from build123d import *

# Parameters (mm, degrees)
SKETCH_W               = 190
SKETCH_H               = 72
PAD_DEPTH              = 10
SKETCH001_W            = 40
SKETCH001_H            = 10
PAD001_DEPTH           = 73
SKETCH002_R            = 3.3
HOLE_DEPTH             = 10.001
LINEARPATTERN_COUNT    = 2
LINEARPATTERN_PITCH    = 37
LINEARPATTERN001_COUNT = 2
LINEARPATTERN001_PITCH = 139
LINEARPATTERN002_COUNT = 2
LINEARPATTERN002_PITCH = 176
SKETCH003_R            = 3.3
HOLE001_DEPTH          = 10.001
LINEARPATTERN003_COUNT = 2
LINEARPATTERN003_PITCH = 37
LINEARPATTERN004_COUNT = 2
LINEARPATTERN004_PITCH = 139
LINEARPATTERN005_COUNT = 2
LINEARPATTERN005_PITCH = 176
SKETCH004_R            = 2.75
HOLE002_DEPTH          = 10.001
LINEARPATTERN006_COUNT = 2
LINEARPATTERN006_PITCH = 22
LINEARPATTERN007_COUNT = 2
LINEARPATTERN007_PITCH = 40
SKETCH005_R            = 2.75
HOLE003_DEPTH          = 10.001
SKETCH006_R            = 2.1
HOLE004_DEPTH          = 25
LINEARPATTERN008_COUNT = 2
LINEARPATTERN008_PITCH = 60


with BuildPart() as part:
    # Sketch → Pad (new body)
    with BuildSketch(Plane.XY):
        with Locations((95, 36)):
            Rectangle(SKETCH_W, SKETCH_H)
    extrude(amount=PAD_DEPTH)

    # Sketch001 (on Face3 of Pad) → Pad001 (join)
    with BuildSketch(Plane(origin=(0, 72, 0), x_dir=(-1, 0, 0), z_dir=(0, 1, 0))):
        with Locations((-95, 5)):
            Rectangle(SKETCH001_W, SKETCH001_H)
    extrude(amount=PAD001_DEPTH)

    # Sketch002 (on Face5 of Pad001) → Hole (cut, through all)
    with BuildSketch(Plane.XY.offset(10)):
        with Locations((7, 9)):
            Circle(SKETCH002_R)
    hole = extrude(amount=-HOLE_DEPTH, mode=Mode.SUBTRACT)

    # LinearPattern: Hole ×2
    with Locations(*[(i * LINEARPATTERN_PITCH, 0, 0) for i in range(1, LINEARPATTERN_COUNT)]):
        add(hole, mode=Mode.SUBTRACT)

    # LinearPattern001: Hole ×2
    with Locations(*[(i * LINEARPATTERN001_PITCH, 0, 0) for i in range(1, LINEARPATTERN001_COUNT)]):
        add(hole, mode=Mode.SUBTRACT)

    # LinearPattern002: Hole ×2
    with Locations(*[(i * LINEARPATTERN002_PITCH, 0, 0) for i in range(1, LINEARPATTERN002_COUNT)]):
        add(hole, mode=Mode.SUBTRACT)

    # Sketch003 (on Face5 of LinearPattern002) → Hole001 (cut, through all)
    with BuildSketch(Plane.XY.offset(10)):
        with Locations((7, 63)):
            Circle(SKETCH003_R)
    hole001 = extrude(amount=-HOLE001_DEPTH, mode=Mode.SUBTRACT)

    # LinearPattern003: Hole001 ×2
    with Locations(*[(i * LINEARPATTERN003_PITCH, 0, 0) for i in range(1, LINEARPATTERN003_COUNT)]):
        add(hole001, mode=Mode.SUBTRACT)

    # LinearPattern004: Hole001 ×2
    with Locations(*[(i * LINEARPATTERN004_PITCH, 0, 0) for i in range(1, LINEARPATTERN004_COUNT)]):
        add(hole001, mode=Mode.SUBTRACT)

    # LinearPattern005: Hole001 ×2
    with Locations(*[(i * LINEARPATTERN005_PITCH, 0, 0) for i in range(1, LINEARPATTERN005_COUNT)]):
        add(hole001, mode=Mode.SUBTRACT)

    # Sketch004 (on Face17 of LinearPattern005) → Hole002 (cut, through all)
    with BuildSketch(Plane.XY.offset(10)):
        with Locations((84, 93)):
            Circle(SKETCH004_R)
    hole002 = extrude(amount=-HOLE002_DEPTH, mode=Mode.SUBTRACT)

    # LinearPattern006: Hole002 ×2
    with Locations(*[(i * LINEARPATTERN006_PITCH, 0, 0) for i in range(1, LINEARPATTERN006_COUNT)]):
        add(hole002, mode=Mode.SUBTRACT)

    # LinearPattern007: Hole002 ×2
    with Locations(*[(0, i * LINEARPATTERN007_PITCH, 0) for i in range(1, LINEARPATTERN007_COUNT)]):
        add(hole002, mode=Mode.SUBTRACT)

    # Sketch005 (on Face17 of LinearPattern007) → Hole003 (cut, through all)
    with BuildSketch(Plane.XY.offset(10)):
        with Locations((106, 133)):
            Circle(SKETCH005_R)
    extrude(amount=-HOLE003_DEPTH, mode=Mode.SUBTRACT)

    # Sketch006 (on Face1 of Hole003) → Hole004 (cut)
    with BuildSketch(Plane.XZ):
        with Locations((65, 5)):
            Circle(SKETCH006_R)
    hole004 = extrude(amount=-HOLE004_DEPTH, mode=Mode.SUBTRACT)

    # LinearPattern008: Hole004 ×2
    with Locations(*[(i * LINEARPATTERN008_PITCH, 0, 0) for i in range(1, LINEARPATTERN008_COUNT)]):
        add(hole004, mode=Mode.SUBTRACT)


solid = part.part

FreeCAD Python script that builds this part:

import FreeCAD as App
import Part
import Sketcher
from FreeCAD import Vector

doc = App.newDocument("Part")
body = doc.addObject("PartDesign::Body", "Body")

sketch1 = doc.addObject("Sketcher::SketchObject", "Sketch")
body.addObject(sketch1)
sketch1.AttachmentSupport = (doc.XY_Plane, [""])
sketch1.MapMode = "FlatFace"
sketch1.addGeometry(Part.LineSegment(Vector(0, 72, 0), Vector(0, 0, 0)), False)
sketch1.addGeometry(Part.LineSegment(Vector(0, 0, 0), Vector(190, 0, 0)), False)
sketch1.addGeometry(Part.LineSegment(Vector(190, 0, 0), Vector(190, 72, 0)), False)
sketch1.addGeometry(Part.LineSegment(Vector(190, 72, 0), Vector(0, 72, 0)), False)
sketch1.addConstraint(Sketcher.Constraint("Coincident", 0, 2, 1, 1))
sketch1.addConstraint(Sketcher.Constraint("Coincident", 1, 2, 2, 1))
sketch1.addConstraint(Sketcher.Constraint("Coincident", 2, 2, 3, 1))
sketch1.addConstraint(Sketcher.Constraint("Coincident", 3, 2, 0, 1))
sketch1.addConstraint(Sketcher.Constraint("Vertical", 0))
sketch1.addConstraint(Sketcher.Constraint("Horizontal", 1))
sketch1.addConstraint(Sketcher.Constraint("Vertical", 2))
sketch1.addConstraint(Sketcher.Constraint("Horizontal", 3))
sketch1.addConstraint(Sketcher.Constraint("Coincident", 0, 2, -1, 1))
sketch1.addConstraint(Sketcher.Constraint("DistanceX", 1, 1, 1, 2, 190.0))
sketch1.addConstraint(Sketcher.Constraint("DistanceY", 0, 2, 0, 1, 72.0))
pad1 = doc.addObject("PartDesign::Pad", "Pad")
body.addObject(pad1)
pad1.Profile = sketch1
pad1.Length = 10

sketch2 = doc.addObject("Sketcher::SketchObject", "Sketch001")
body.addObject(sketch2)
sketch2.AttachmentSupport = (doc.XZ_Plane, [""])
sketch2.MapMode = "FlatFace"
sketch2.AttachmentOffset = App.Placement(Vector(0, 0, -72), App.Rotation())
sketch2.addGeometry(Part.LineSegment(Vector(115, 10, 0), Vector(115, 0, 0)), False)
sketch2.addGeometry(Part.LineSegment(Vector(115, 0, 0), Vector(75, 0, 0)), False)
sketch2.addGeometry(Part.LineSegment(Vector(75, 0, 0), Vector(75, 10, 0)), False)
sketch2.addGeometry(Part.LineSegment(Vector(75, 10, 0), Vector(115, 10, 0)), False)
sketch2.addConstraint(Sketcher.Constraint("Coincident", 0, 2, 1, 1))
sketch2.addConstraint(Sketcher.Constraint("Coincident", 1, 2, 2, 1))
sketch2.addConstraint(Sketcher.Constraint("Coincident", 2, 2, 3, 1))
sketch2.addConstraint(Sketcher.Constraint("Coincident", 3, 2, 0, 1))
sketch2.addConstraint(Sketcher.Constraint("Vertical", 0))
sketch2.addConstraint(Sketcher.Constraint("Horizontal", 1))
sketch2.addConstraint(Sketcher.Constraint("Vertical", 2))
sketch2.addConstraint(Sketcher.Constraint("Horizontal", 3))
sketch2.addConstraint(Sketcher.Constraint("PointOnObject", 0, 2, -1))
sketch2.addConstraint(Sketcher.Constraint("DistanceX", 1, 2, 1, 1, 40.0))
sketch2.addConstraint(Sketcher.Constraint("DistanceY", 0, 2, 0, 1, 10.0))
sketch2.addConstraint(Sketcher.Constraint("DistanceX", -1, 1, 0, 2, 115.0))
pad2 = doc.addObject("PartDesign::Pad", "Pad001")
body.addObject(pad2)
pad2.Profile = sketch2
pad2.Length = 73
pad2.Reversed = True

sketch3 = doc.addObject("Sketcher::SketchObject", "Sketch002")
body.addObject(sketch3)
sketch3.AttachmentSupport = (doc.XY_Plane, [""])
sketch3.MapMode = "FlatFace"
sketch3.AttachmentOffset = App.Placement(Vector(0, 0, 10), App.Rotation())
sketch3.addGeometry(Part.Circle(Vector(7, 9, 0), Vector(0, 0, 1), 3.3), False)
sketch3.addConstraint(Sketcher.Constraint("Diameter", 0, 6.6))
sketch3.addConstraint(Sketcher.Constraint("DistanceX", -1, 1, 0, 3, 7.0))
sketch3.addConstraint(Sketcher.Constraint("DistanceY", -1, 1, 0, 3, 9.0))
pocket1 = doc.addObject("PartDesign::Pocket", "Pocket")
body.addObject(pocket1)
pocket1.Profile = sketch3
pocket1.Type = "ThroughAll"
doc.recompute()

linearpattern = doc.addObject("PartDesign::LinearPattern", "LinearPattern")
body.addObject(linearpattern)
linearpattern.Originals = [pocket1]
linearpattern.Direction = (doc.X_Axis, [""])
linearpattern.Mode = "offset"
linearpattern.Offset = 37
linearpattern.Occurrences = 2
body.Tip = linearpattern
doc.recompute()

linearpattern2 = doc.addObject("PartDesign::LinearPattern", "LinearPattern001")
body.addObject(linearpattern2)
linearpattern2.Originals = [pocket1]
linearpattern2.Direction = (doc.X_Axis, [""])
linearpattern2.Mode = "offset"
linearpattern2.Offset = 139
linearpattern2.Occurrences = 2
body.Tip = linearpattern2
doc.recompute()

linearpattern3 = doc.addObject("PartDesign::LinearPattern", "LinearPattern002")
body.addObject(linearpattern3)
linearpattern3.Originals = [pocket1]
linearpattern3.Direction = (doc.X_Axis, [""])
linearpattern3.Mode = "offset"
linearpattern3.Offset = 176
linearpattern3.Occurrences = 2
body.Tip = linearpattern3

sketch4 = doc.addObject("Sketcher::SketchObject", "Sketch003")
body.addObject(sketch4)
sketch4.AttachmentSupport = (doc.XY_Plane, [""])
sketch4.MapMode = "FlatFace"
sketch4.AttachmentOffset = App.Placement(Vector(0, 0, 10), App.Rotation())
sketch4.addGeometry(Part.Circle(Vector(7, 63, 0), Vector(0, 0, 1), 3.3), False)
sketch4.addConstraint(Sketcher.Constraint("Diameter", 0, 6.6))
sketch4.addConstraint(Sketcher.Constraint("DistanceX", -1, 1, 0, 3, 7.0))
sketch4.addConstraint(Sketcher.Constraint("DistanceY", -1, 1, 0, 3, 63.0))
pocket2 = doc.addObject("PartDesign::Pocket", "Pocket001")
body.addObject(pocket2)
pocket2.Profile = sketch4
pocket2.Type = "ThroughAll"
doc.recompute()

linearpattern4 = doc.addObject("PartDesign::LinearPattern", "LinearPattern003")
body.addObject(linearpattern4)
linearpattern4.Originals = [pocket2]
linearpattern4.Direction = (doc.X_Axis, [""])
linearpattern4.Mode = "offset"
linearpattern4.Offset = 37
linearpattern4.Occurrences = 2
body.Tip = linearpattern4
doc.recompute()

linearpattern5 = doc.addObject("PartDesign::LinearPattern", "LinearPattern004")
body.addObject(linearpattern5)
linearpattern5.Originals = [pocket2]
linearpattern5.Direction = (doc.X_Axis, [""])
linearpattern5.Mode = "offset"
linearpattern5.Offset = 139
linearpattern5.Occurrences = 2
body.Tip = linearpattern5
doc.recompute()

linearpattern6 = doc.addObject("PartDesign::LinearPattern", "LinearPattern005")
body.addObject(linearpattern6)
linearpattern6.Originals = [pocket2]
linearpattern6.Direction = (doc.X_Axis, [""])
linearpattern6.Mode = "offset"
linearpattern6.Offset = 176
linearpattern6.Occurrences = 2
body.Tip = linearpattern6

sketch5 = doc.addObject("Sketcher::SketchObject", "Sketch004")
body.addObject(sketch5)
sketch5.AttachmentSupport = (doc.XY_Plane, [""])
sketch5.MapMode = "FlatFace"
sketch5.AttachmentOffset = App.Placement(Vector(0, 0, 10), App.Rotation())
sketch5.addGeometry(Part.Circle(Vector(84, 93, 0), Vector(0, 0, 1), 2.75), False)
sketch5.addConstraint(Sketcher.Constraint("Diameter", 0, 5.5))
sketch5.addConstraint(Sketcher.Constraint("DistanceX", -1, 1, 0, 3, 84.0))
sketch5.addConstraint(Sketcher.Constraint("DistanceY", -1, 1, 0, 3, 93.0))
pocket3 = doc.addObject("PartDesign::Pocket", "Pocket002")
body.addObject(pocket3)
pocket3.Profile = sketch5
pocket3.Type = "ThroughAll"
doc.recompute()

linearpattern7 = doc.addObject("PartDesign::LinearPattern", "LinearPattern006")
body.addObject(linearpattern7)
linearpattern7.Originals = [pocket3]
linearpattern7.Direction = (doc.X_Axis, [""])
linearpattern7.Mode = "offset"
linearpattern7.Offset = 22
linearpattern7.Occurrences = 2
body.Tip = linearpattern7
doc.recompute()

linearpattern8 = doc.addObject("PartDesign::LinearPattern", "LinearPattern007")
body.addObject(linearpattern8)
linearpattern8.Originals = [pocket3]
linearpattern8.Direction = (doc.Y_Axis, [""])
linearpattern8.Mode = "offset"
linearpattern8.Offset = 40
linearpattern8.Occurrences = 2
body.Tip = linearpattern8

sketch6 = doc.addObject("Sketcher::SketchObject", "Sketch005")
body.addObject(sketch6)
sketch6.AttachmentSupport = (doc.XY_Plane, [""])
sketch6.MapMode = "FlatFace"
sketch6.AttachmentOffset = App.Placement(Vector(0, 0, 10), App.Rotation())
sketch6.addGeometry(Part.Circle(Vector(106, 133, 0), Vector(0, 0, 1), 2.75), False)
sketch6.addConstraint(Sketcher.Constraint("Diameter", 0, 5.5))
sketch6.addConstraint(Sketcher.Constraint("DistanceX", -1, 1, 0, 3, 106.0))
sketch6.addConstraint(Sketcher.Constraint("DistanceY", -1, 1, 0, 3, 133.0))
pocket4 = doc.addObject("PartDesign::Pocket", "Pocket003")
body.addObject(pocket4)
pocket4.Profile = sketch6
pocket4.Type = "ThroughAll"

sketch7 = doc.addObject("Sketcher::SketchObject", "Sketch006")
body.addObject(sketch7)
sketch7.AttachmentSupport = (doc.XZ_Plane, [""])
sketch7.MapMode = "FlatFace"
sketch7.addGeometry(Part.Circle(Vector(65, 5, 0), Vector(0, 0, 1), 2.1), False)
sketch7.addConstraint(Sketcher.Constraint("Diameter", 0, 4.2))
sketch7.addConstraint(Sketcher.Constraint("DistanceX", -1, 1, 0, 3, 65.0))
sketch7.addConstraint(Sketcher.Constraint("DistanceY", -1, 1, 0, 3, 5.0))
pocket5 = doc.addObject("PartDesign::Pocket", "Pocket004")
body.addObject(pocket5)
pocket5.Profile = sketch7
pocket5.Length = 25
doc.recompute()

linearpattern9 = doc.addObject("PartDesign::LinearPattern", "LinearPattern008")
body.addObject(linearpattern9)
linearpattern9.Originals = [pocket5]
linearpattern9.Direction = (doc.X_Axis, [""])
linearpattern9.Mode = "offset"
linearpattern9.Offset = 60
linearpattern9.Occurrences = 2
body.Tip = linearpattern9

doc.recompute()
